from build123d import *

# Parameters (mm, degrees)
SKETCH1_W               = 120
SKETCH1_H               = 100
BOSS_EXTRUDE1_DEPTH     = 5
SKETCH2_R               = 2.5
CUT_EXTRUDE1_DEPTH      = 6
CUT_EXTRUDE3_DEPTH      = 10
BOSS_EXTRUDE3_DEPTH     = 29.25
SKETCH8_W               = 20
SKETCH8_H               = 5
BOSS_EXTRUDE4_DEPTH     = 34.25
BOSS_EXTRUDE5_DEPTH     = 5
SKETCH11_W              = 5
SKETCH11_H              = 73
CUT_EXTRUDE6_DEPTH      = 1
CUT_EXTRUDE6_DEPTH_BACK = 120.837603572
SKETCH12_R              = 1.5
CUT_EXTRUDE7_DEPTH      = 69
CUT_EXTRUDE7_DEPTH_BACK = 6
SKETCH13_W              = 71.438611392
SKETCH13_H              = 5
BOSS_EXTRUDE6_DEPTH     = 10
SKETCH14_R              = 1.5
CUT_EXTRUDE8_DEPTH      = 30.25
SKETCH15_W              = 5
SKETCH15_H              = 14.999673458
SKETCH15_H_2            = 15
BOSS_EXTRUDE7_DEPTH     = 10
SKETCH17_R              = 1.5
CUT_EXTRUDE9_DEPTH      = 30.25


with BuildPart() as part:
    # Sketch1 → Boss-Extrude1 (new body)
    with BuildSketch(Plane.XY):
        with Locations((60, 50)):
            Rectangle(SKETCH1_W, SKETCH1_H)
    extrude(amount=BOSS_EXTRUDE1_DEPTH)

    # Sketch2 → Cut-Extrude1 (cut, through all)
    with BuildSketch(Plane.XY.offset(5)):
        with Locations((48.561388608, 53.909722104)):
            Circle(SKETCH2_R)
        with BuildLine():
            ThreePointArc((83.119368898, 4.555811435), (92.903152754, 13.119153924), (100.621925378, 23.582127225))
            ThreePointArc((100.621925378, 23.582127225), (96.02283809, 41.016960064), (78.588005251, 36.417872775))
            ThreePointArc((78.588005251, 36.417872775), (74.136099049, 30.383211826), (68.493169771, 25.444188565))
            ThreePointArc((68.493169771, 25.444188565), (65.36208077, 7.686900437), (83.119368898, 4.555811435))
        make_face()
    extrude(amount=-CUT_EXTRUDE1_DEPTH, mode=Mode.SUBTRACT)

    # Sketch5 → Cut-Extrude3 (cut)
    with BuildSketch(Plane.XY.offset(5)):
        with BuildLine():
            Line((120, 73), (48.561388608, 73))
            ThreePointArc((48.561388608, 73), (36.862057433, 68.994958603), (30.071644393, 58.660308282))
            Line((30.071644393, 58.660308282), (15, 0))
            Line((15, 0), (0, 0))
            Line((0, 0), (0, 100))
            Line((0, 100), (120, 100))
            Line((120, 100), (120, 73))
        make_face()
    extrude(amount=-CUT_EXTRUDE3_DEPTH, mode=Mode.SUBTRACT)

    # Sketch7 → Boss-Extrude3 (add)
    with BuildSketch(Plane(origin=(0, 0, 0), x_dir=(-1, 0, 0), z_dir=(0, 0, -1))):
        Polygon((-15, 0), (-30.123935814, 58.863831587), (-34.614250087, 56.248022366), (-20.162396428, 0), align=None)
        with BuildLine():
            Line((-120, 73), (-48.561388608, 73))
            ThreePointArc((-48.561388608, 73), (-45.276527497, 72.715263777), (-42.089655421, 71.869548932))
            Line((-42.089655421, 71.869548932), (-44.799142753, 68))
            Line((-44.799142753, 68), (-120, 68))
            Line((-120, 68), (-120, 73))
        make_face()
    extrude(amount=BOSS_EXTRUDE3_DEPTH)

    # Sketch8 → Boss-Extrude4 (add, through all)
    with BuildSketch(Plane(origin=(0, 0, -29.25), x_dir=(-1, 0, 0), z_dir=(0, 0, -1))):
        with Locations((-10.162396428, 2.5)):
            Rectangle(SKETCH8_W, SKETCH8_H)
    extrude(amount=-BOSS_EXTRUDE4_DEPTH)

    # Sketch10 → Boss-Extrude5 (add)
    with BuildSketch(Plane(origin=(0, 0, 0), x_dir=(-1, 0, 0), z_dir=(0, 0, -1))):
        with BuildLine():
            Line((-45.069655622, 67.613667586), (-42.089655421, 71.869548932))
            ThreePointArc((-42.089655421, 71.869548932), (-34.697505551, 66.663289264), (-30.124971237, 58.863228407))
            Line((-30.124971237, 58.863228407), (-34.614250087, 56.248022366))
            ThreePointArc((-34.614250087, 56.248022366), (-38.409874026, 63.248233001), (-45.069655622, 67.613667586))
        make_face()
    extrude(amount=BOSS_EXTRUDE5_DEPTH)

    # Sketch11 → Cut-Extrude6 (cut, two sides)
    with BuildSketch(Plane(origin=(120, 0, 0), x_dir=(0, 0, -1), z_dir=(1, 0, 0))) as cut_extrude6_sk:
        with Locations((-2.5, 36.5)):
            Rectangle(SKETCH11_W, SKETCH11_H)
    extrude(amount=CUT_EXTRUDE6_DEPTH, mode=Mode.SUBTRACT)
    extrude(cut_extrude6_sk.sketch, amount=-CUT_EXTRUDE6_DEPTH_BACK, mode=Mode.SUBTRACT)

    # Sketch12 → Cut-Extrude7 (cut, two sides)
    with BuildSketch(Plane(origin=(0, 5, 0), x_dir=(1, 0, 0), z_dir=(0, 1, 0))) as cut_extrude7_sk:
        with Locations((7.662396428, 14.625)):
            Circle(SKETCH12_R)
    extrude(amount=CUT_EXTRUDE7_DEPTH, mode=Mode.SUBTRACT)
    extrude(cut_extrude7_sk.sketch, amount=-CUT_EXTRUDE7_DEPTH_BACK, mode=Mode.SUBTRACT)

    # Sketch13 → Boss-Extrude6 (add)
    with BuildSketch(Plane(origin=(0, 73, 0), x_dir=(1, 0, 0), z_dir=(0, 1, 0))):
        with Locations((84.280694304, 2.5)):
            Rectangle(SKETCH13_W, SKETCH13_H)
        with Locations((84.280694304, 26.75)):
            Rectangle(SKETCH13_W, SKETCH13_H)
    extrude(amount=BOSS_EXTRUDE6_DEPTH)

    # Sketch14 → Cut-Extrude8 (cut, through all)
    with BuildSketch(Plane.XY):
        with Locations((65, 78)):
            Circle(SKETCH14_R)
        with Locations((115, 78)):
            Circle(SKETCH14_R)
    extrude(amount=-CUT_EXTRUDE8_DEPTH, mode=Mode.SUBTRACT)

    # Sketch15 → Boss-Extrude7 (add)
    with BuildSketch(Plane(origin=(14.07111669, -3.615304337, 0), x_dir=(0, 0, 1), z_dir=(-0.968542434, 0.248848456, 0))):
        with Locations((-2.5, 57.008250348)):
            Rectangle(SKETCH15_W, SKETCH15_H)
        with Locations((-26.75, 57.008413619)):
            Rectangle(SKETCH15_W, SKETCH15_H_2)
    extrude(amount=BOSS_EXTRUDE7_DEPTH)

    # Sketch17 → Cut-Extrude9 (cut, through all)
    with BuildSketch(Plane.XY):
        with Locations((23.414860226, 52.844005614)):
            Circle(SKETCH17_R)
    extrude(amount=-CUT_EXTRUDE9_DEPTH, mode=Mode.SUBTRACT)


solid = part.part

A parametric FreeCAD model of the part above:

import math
import FreeCAD as App
import Part
import Sketcher

V = App.Vector
Q = App.Units.Quantity

doc = App.newDocument("Part")
params = doc.addObject("Spreadsheet::Sheet", "Params")
for row, (alias, value) in enumerate([
    ("sketch1_width", "120 mm"),
    ("sketch1_height", "100 mm"),
    ("pad1_length", "5 mm"),
    ("sketch2_diameter", "5 mm"),
    ("sketch2_radius", "60.25 mm"),
    ("sketch2_radius2", "12.75 mm"),
    ("sketch3_width", "120 mm"),
    ("sketch3_width2", "15 mm"),
    ("sketch3_height", "27 mm"),
    ("sketch3_height2", "100 mm"),
    ("pocket2_length", "10 mm"),
    ("sketch4_height", "5 mm"),
    ("pad2_length", "29.25 mm"),
    ("sketch5_width", "20 mm"),
    ("sketch5_height", "5 mm"),
    ("pad3_length", "34.25 mm"),
    ("pad4_length", "5 mm"),
    ("sketch7_width", "73 mm"),
    ("sketch7_height", "5 mm"),
    ("sketch8_diameter", "3 mm"),
    ("sketch9_height", "5 mm"),
    ("pad5_length", "10 mm"),
    ("sketch10_diameter", "3 mm"),
    ("sketch11_width", "5 mm"),
    ("sketch11_height", "15 mm"),
    ("pad6_length", "10 mm"),
    ("sketch12_diameter", "3 mm"),
], start=1):
    params.set(f"A{row}", alias)
    params.set(f"B{row}", "=" + value)
    params.setAlias(f"B{row}", alias)

body = doc.addObject("PartDesign::Body", "Body")

# Sketch on XY plane
sketch1 = body.newObject("Sketcher::SketchObject", "Sketch")
sketch1.AttachmentSupport = (doc.getObject("XY_Plane"), [""])
sketch1.MapMode = "FlatFace"
sketch1.addGeometry(Part.LineSegment(V(0, 100, 0), V(0, 0, 0)), False)
sketch1.addGeometry(Part.LineSegment(V(0, 0, 0), V(120, 0, 0)), False)
sketch1.addGeometry(Part.LineSegment(V(120, 0, 0), V(120, 100, 0)), False)
sketch1.addGeometry(Part.LineSegment(V(120, 100, 0), V(0, 100, 0)), False)
sketch1.addConstraint(Sketcher.Constraint("Coincident", 0, 2, 1, 1))
sketch1.addConstraint(Sketcher.Constraint("Coincident", 1, 2, 2, 1))
sketch1.addConstraint(Sketcher.Constraint("Coincident", 2, 2, 3, 1))
sketch1.addConstraint(Sketcher.Constraint("Coincident", 3, 2, 0, 1))
sketch1.addConstraint(Sketcher.Constraint("Vertical", 0))
sketch1.addConstraint(Sketcher.Constraint("Horizontal", 1))
sketch1.addConstraint(Sketcher.Constraint("Vertical", 2))
sketch1.addConstraint(Sketcher.Constraint("Horizontal", 3))
sketch1.addConstraint(Sketcher.Constraint("Coincident", 0, 2, -1, 1))
sketch1.addConstraint(Sketcher.Constraint("DistanceX", 1, 1, 1, 2, Q("120 mm")))
sketch1.addConstraint(Sketcher.Constraint("DistanceY", 0, 2, 0, 1, Q("100 mm")))
sketch1.setExpression("Constraints[9]", "Params.sketch1_width")
sketch1.setExpression("Constraints[10]", "Params.sketch1_height")
pad1 = body.newObject("PartDesign::Pad", "Pad")
pad1.Profile = sketch1
pad1.setExpression("Length", "Params.pad1_length")

# Sketch on XY plane
sketch2 = body.newObject("Sketcher::SketchObject", "Sketch001")
sketch2.AttachmentSupport = (doc.getObject("XY_Plane"), [""])
sketch2.MapMode = "FlatFace"
sketch2.AttachmentOffset = App.Placement(V(0, 0, 5), App.Rotation())
sketch2.addGeometry(Part.Circle(V(48.561389, 53.909722, 0), V(0, 0, 1), 2.5), False)
sketch2.addGeometry(Part.ArcOfCircle(Part.Circle(V(48.561389, 53.909722, 0), V(0, 0, 1), 60.25), math.radians(-55), math.radians(-30.222716)), False)
sketch2.addGeometry(Part.ArcOfCircle(Part.Circle(V(89.604965, 30, 0), V(0, 0, 1), 12.75), math.radians(-30.222716), math.radians(149.777284)), False)
sketch2.addGeometry(Part.ArcOfCircle(Part.Circle(V(48.561389, 53.909722, 0), V(0, 0, 1), 34.75), math.radians(-55), math.radians(-30.222716)), False)
sketch2.addGeometry(Part.ArcOfCircle(Part.Circle(V(75.806269, 15, 0), V(0, 0, 1), 12.75), math.radians(125), math.radians(305)), False)
sketch2.addConstraint(Sketcher.Constraint("Tangent", 1, 2, 2, 1))
sketch2.addConstraint(Sketcher.Constraint("Tangent", 2, 2, 3, 2))
sketch2.addConstraint(Sketcher.Constraint("Tangent", 3, 1, 4, 1))
sketch2.addConstraint(Sketcher.Constraint("Tangent", 4, 2, 1, 1))
sketch2.addConstraint(Sketcher.Constraint("Coincident", 1, 3, 0, 3))
sketch2.addConstraint(Sketcher.Constraint("Coincident", 3, 3, 0, 3))
sketch2.addConstraint(Sketcher.Constraint("Diameter", 0, Q("5 mm")))
sketch2.addConstraint(Sketcher.Constraint("Radius", 1, Q("60.25 mm")))
sketch2.addConstraint(Sketcher.Constraint("Radius", 2, Q("12.75 mm")))
sketch2.addConstraint(Sketcher.Constraint("DistanceY", -1, 1, 2, 3, Q("30 mm")))
sketch2.addConstraint(Sketcher.Constraint("DistanceY", -1, 1, 4, 3, Q("15 mm")))
sketch2.addConstraint(Sketcher.Constraint("DistanceX", 3, 1, 4, 3, Q("7.3131 mm")))
sketch2.addConstraint(Sketcher.Constraint("DistanceX", -1, 1, 0, 3, Q("48.561389 mm")))
sketch2.setExpression("Constraints[6]", "Params.sketch2_diameter")
sketch2.setExpression("Constraints[7]", "Params.sketch2_radius")
sketch2.setExpression("Constraints[8]", "Params.sketch2_radius2")
pocket1 = body.newObject("PartDesign::Pocket", "Pocket")
pocket1.Profile = sketch2
pocket1.Type = "ThroughAll"

# Sketch on XY plane
sketch3 = body.newObject("Sketcher::SketchObject", "Sketch002")
sketch3.AttachmentSupport = (doc.getObject("XY_Plane"), [""])
sketch3.MapMode = "FlatFace"
sketch3.AttachmentOffset = App.Placement(V(0, 0, 5), App.Rotation())
sketch3.addGeometry(Part.LineSegment(V(48.561389, 73, 0), V(120, 73, 0)), False)
sketch3.addGeometry(Part.LineSegment(V(120, 73, 0), V(120, 100, 0)), False)
sketch3.addGeometry(Part.LineSegment(V(120, 100, 0), V(0, 100, 0)), False)
sketch3.addGeometry(Part.LineSegment(V(0, 100, 0), V(0, 0, 0)), False)
sketch3.addGeometry(Part.LineSegment(V(0, 0, 0), V(15, 0, 0)), False)
sketch3.addGeometry(Part.LineSegment(V(15, 0, 0), V(30.071644, 58.660308, 0)), False)
sketch3.addGeometry(Part.ArcOfCircle(Part.Circle(V(48.561389, 53.909722, 0), V(0, 0, 1), 19.090278), math.radians(90), math.radians(165.59062)), False)
sketch3.addConstraint(Sketcher.Constraint("Coincident", 0, 2, 1, 1))
sketch3.addConstraint(Sketcher.Constraint("Coincident", 1, 2, 2, 1))
sketch3.addConstraint(Sketcher.Constraint("Coincident", 2, 2, 3, 1))
sketch3.addConstraint(Sketcher.Constraint("Coincident", 3, 2, 4, 1))
sketch3.addConstraint(Sketcher.Constraint("Coincident", 4, 2, 5, 1))
sketch3.addConstraint(Sketcher.Constraint("Tangent", 5, 2, 6, 2))
sketch3.addConstraint(Sketcher.Constraint("Tangent", 6, 1, 0, 1))
sketch3.addConstraint(Sketcher.Constraint("Horizontal", 0))
sketch3.addConstraint(Sketcher.Constraint("Vertical", 1))
sketch3.addConstraint(Sketcher.Constraint("Horizontal", 2))
sketch3.addConstraint(Sketcher.Constraint("Vertical", 3))
sketch3.addConstraint(Sketcher.Constraint("Horizontal", 4))
sketch3.addConstraint(Sketcher.Constraint("Coincident", 3, 2, -1, 1))
sketch3.addConstraint(Sketcher.Constraint("DistanceX", 2, 2, 2, 1, Q("120 mm")))
sketch3.addConstraint(Sketcher.Constraint("DistanceX", 4, 1, 4, 2, Q("15 mm")))
sketch3.addConstraint(Sketcher.Constraint("DistanceY", 1, 1, 1, 2, Q("27 mm")))
sketch3.addConstraint(Sketcher.Constraint("DistanceY", 3, 2, 3, 1, Q("100 mm")))
sketch3.addConstraint(Sketcher.Constraint("Radius", 6, Q("19.090278 mm")))
sketch3.addConstraint(Sketcher.Constraint("DistanceX", 0, 1, 0, 2, Q("71.438611 mm")))
sketch3.setExpression("Constraints[13]", "Params.sketch3_width")
sketch3.setExpression("Constraints[14]", "Params.sketch3_width2")
sketch3.setExpression("Constraints[15]", "Params.sketch3_height")
sketch3.setExpression("Constraints[16]", "Params.sketch3_height2")
pocket2 = body.newObject("PartDesign::Pocket", "Pocket001")
pocket2.Profile = sketch3
pocket2.setExpression("Length", "Params.pocket2_length")

# Sketch on XY plane
sketch4 = body.newObject("Sketcher::SketchObject", "Sketch003")
sketch4.AttachmentSupport = (doc.getObject("XY_Plane"), [""])
sketch4.MapMode = "FlatFace"
sketch4.addGeometry(Part.LineSegment(V(15, 0, 0), V(30.123936, 58.863832, 0)), False)
sketch4.addGeometry(Part.LineSegment(V(30.123936, 58.863832, 0), V(34.61425, 56.248022, 0)), False)
sketch4.addGeometry(Part.LineSegment(V(34.61425, 56.248022, 0), V(20.162396, 0, 0)), False)
sketch4.addGeometry(Part.LineSegment(V(20.162396, 0, 0), V(15, 0, 0)), False)
sketch4.addGeometry(Part.LineSegment(V(48.561389, 73, 0), V(120, 73, 0)), False)
sketch4.addGeometry(Part.LineSegment(V(120, 73, 0), V(120, 68, 0)), False)
sketch4.addGeometry(Part.LineSegment(V(120, 68, 0), V(44.799143, 68, 0)), False)
sketch4.addGeometry(Part.LineSegment(V(44.799143, 68, 0), V(42.089655, 71.869549, 0)), False)
sketch4.addGeometry(Part.ArcOfCircle(Part.Circle(V(48.561389, 53.909722, 0), V(0, 0, 1), 19.090278), math.radians(90), math.radians(109.816372)), False)
sketch4.addConstraint(Sketcher.Constraint("Coincident", 0, 2, 1, 1))
sketch4.addConstraint(Sketcher.Constraint("Coincident", 1, 2, 2, 1))
sketch4.addConstraint(Sketcher.Constraint("Coincident", 2, 2, 3, 1))
sketch4.addConstraint(Sketcher.Constraint("Coincident", 3, 2, 0, 1))
sketch4.addConstraint(Sketcher.Constraint("Coincident", 4, 2, 5, 1))
sketch4.addConstraint(Sketcher.Constraint("Coincident", 5, 2, 6, 1))
sketch4.addConstraint(Sketcher.Constraint("Coincident", 6, 2, 7, 1))
sketch4.addConstraint(Sketcher.Constraint("Coincident", 7, 2, 8, 2))
sketch4.addConstraint(Sketcher.Constraint("Tangent", 8, 1, 4, 1))
sketch4.addConstraint(Sketcher.Constraint("Horizontal", 3))
sketch4.addConstraint(Sketcher.Constraint("Horizontal", 4))
sketch4.addConstraint(Sketcher.Constraint("Vertical", 5))
sketch4.addConstraint(Sketcher.Constraint("Horizontal", 6))
sketch4.addConstraint(Sketcher.Constraint("PointOnObject", 2, 2, -1))
sketch4.addConstraint(Sketcher.Constraint("Parallel", 0, 2))
sketch4.addConstraint(Sketcher.Constraint("DistanceY", 5, 2, 5, 1, Q("5 mm")))
sketch4.addConstraint(Sketcher.Constraint("Angle", 7, Q("125 deg")))
sketch4.addConstraint(Sketcher.Constraint("DistanceX", -1, 1, 3, 2, Q("15 mm")))
sketch4.addConstraint(Sketcher.Constraint("DistanceX", -1, 1, 4, 2, Q("120 mm")))
sketch4.addConstraint(Sketcher.Constraint("DistanceY", -1, 1, 4, 2, Q("73 mm")))
sketch4.addConstraint(Sketcher.Constraint("Radius", 8, Q("19.090278 mm")))
sketch4.addConstraint(Sketcher.Constraint("DistanceX", 4, 1, 4, 2, Q("71.438611 mm")))
sketch4.addConstraint(Sketcher.Constraint("DistanceY", 8, 3, 1, 2, Q("2.3383 mm")))
sketch4.addConstraint(Sketcher.Constraint("Distance", 1, Q("5.19667 mm")))
sketch4.addConstraint(Sketcher.Constraint("DistanceX", 3, 2, 3, 1, Q("5.162396 mm")))
sketch4.addConstraint(Sketcher.Constraint("DistanceX", 6, 2, 6, 1, Q("75.200857 mm")))
sketch4.addConstraint(Sketcher.Constraint("DistanceY", -1, 1, 0, 2, Q("58.863832 mm")))
sketch4.setExpression("Constraints[15]", "Params.sketch4_height")
pad2 = body.newObject("PartDesign::Pad", "Pad001")
pad2.Profile = sketch4
pad2.setExpression("Length", "Params.pad2_length")
pad2.Reversed = True

# Sketch on XY plane
sketch5 = body.newObject("Sketcher::SketchObject", "Sketch004")
sketch5.AttachmentSupport = (doc.getObject("XY_Plane"), [""])
sketch5.MapMode = "FlatFace"
sketch5.AttachmentOffset = App.Placement(V(0, 0, -29.25), App.Rotation())
sketch5.addGeometry(Part.LineSegment(V(20.162396, 5, 0), V(20.162396, 0, 0)), False)
sketch5.addGeometry(Part.LineSegment(V(20.162396, 0, 0), V(0.162396, 0, 0)), False)
sketch5.addGeometry(Part.LineSegment(V(0.162396, 0, 0), V(0.162396, 5, 0)), False)
sketch5.addGeometry(Part.LineSegment(V(0.162396, 5, 0), V(20.162396, 5, 0)), False)
sketch5.addConstraint(Sketcher.Constraint("Coincident", 0, 2, 1, 1))
sketch5.addConstraint(Sketcher.Constraint("Coincident", 1, 2, 2, 1))
sketch5.addConstraint(Sketcher.Constraint("Coincident", 2, 2, 3, 1))
sketch5.addConstraint(Sketcher.Constraint("Coincident", 3, 2, 0, 1))
sketch5.addConstraint(Sketcher.Constraint("Vertical", 0))
sketch5.addConstraint(Sketcher.Constraint("Horizontal", 1))
sketch5.addConstraint(Sketcher.Constraint("Vertical", 2))
sketch5.addConstraint(Sketcher.Constraint("Horizontal", 3))
sketch5.addConstraint(Sketcher.Constraint("PointOnObject", 0, 2, -1))
sketch5.addConstraint(Sketcher.Constraint("DistanceX", 1, 2, 1, 1, Q("20 mm")))
sketch5.addConstraint(Sketcher.Constraint("DistanceY", 0, 2, 0, 1, Q("5 mm")))
sketch5.addConstraint(Sketcher.Constraint("DistanceX", -1, 1, 0, 2, Q("20.162396 mm")))
sketch5.setExpression("Constraints[9]", "Params.sketch5_width")
sketch5.setExpression("Constraints[10]", "Params.sketch5_height")
pad3 = body.newObject("PartDesign::Pad", "Pad002")
pad3.Profile = sketch5
pad3.setExpression("Length", "Params.pad3_length")

# Sketch on XY plane
sketch6 = body.newObject("Sketcher::SketchObject", "Sketch005")
sketch6.AttachmentSupport = (doc.getObject("XY_Plane"), [""])
sketch6.MapMode = "FlatFace"
sketch6.addGeometry(Part.LineSegment(V(42.089655, 71.869549, 0), V(45.069656, 67.613668, 0)), False)
sketch6.addGeometry(Part.ArcOfCircle(Part.Circle(V(50.401296, 52.217167, 0), V(0, 0, 1), 16.293514), math.radians(109.100412), math.radians(165.676872)), False)
sketch6.addGeometry(Part.LineSegment(V(34.61425, 56.248022, 0), V(30.124971, 58.863228, 0)), False)
sketch6.addGeometry(Part.ArcOfCircle(Part.Circle(V(50.401296, 52.217167, 0), V(0, 0, 1), 21.337747), math.radians(112.925105), math.radians(161.852178)), False)
sketch6.addConstraint(Sketcher.Constraint("Coincident", 0, 2, 1, 1))
sketch6.addConstraint(Sketcher.Constraint("Coincident", 1, 2, 2, 1))
sketch6.addConstraint(Sketcher.Constraint("Coincident", 2, 2, 3, 2))
sketch6.addConstraint(Sketcher.Constraint("Coincident", 3, 1, 0, 1))
sketch6.addConstraint(Sketcher.Constraint("Coincident", 3, 3, 1, 3))
sketch6.addConstraint(Sketcher.Constraint("Equal", 0, 2))
sketch6.addConstraint(Sketcher.Constraint("Angle", 0, Q("-55 deg")))
sketch6.addConstraint(Sketcher.Constraint("DistanceX", 3, 1, 0, 2, Q("2.98 mm")))
sketch6.addConstraint(Sketcher.Constraint("Radius", 1, Q("16.293514 mm")))
sketch6.addConstraint(Sketcher.Constraint("Radius", 3, Q("21.337747 mm")))
sketch6.addConstraint(Sketcher.Constraint("DistanceX", -1, 1, 1, 2, Q("34.61425 mm")))
sketch6.addConstraint(Sketcher.Constraint("DistanceX", -1, 1, 2, 2, Q("30.124971 mm")))
sketch6.addConstraint(Sketcher.Constraint("DistanceY", -1, 1, 2, 2, Q("58.863228 mm")))
pad4 = body.newObject("PartDesign::Pad", "Pad003")
pad4.Profile = sketch6
pad4.setExpression("Length", "Params.pad4_length")
pad4.Reversed = True

# Sketch on YZ plane
sketch7 = body.newObject("Sketcher::SketchObject", "Sketch006")
sketch7.AttachmentSupport = (doc.getObject("YZ_Plane"), [""])
sketch7.MapMode = "FlatFace"
sketch7.AttachmentOffset = App.Placement(V(0, 0, 120), App.Rotation())
sketch7.addGeometry(Part.LineSegment(V(73, 5, 0), V(0, 5, 0)), False)
sketch7.addGeometry(Part.LineSegment(V(0, 5, 0), V(0, 0, 0)), False)
sketch7.addGeometry(Part.LineSegment(V(0, 0, 0), V(73, 0, 0)), False)
sketch7.addGeometry(Part.LineSegment(V(73, 0, 0), V(73, 5, 0)), False)
sketch7.addConstraint(Sketcher.Constraint("Coincident", 0, 2, 1, 1))
sketch7.addConstraint(Sketcher.Constraint("Coincident", 1, 2, 2, 1))
sketch7.addConstraint(Sketcher.Constraint("Coincident", 2, 2, 3, 1))
sketch7.addConstraint(Sketcher.Constraint("Coincident", 3, 2, 0, 1))
sketch7.addConstraint(Sketcher.Constraint("Horizontal", 0))
sketch7.addConstraint(Sketcher.Constraint("Vertical", 1))
sketch7.addConstraint(Sketcher.Constraint("Horizontal", 2))
sketch7.addConstraint(Sketcher.Constraint("Vertical", 3))
sketch7.addConstraint(Sketcher.Constraint("Coincident", 1, 2, -1, 1))
sketch7.addConstraint(Sketcher.Constraint("DistanceX", 0, 2, 0, 1, Q("73 mm")))
sketch7.addConstraint(Sketcher.Constraint("DistanceY", 1, 2, 1, 1, Q("5 mm")))
sketch7.setExpression("Constraints[9]", "Params.sketch7_width")
sketch7.setExpression("Constraints[10]", "Params.sketch7_height")
pocket3 = body.newObject("PartDesign::Pocket", "Pocket002")
pocket3.Profile = sketch7
pocket3.Type = "ThroughAll"
pocket3.Midplane = True

# Sketch on XZ plane
sketch8 = body.newObject("Sketcher::SketchObject", "Sketch007")
sketch8.AttachmentSupport = (doc.getObject("XZ_Plane"), [""])
sketch8.MapMode = "FlatFace"
sketch8.AttachmentOffset = App.Placement(V(0, 0, -5), App.Rotation())
sketch8.addGeometry(Part.Circle(V(7.662396, -14.625, 0), V(0, 0, 1), 1.5), False)
sketch8.addConstraint(Sketcher.Constraint("Diameter", 0, Q("3 mm")))
sketch8.addConstraint(Sketcher.Constraint("DistanceY", 0, 3, -1, 1, Q("14.625 mm")))
sketch8.addConstraint(Sketcher.Constraint("DistanceX", -1, 1, 0, 3, Q("7.662396 mm")))
sketch8.setExpression("Constraints[0]", "Params.sketch8_diameter")
pocket4 = body.newObject("PartDesign::Pocket", "Pocket003")
pocket4.Profile = sketch8
pocket4.Type = "ThroughAll"
pocket4.Midplane = True

# Sketch on XZ plane
sketch9 = body.newObject("Sketcher::SketchObject", "Sketch008")
sketch9.AttachmentSupport = (doc.getObject("XZ_Plane"), [""])
sketch9.MapMode = "FlatFace"
sketch9.AttachmentOffset = App.Placement(V(0, 0, -73), App.Rotation())
sketch9.addGeometry(Part.LineSegment(V(48.561389, -5, 0), V(48.561389, 0, 0)), False)
sketch9.addGeometry(Part.LineSegment(V(48.561389, 0, 0), V(120, 0, 0)), False)
sketch9.addGeometry(Part.LineSegment(V(120, 0, 0), V(120, -5, 0)), False)
sketch9.addGeometry(Part.LineSegment(V(120, -5, 0), V(48.561389, -5, 0)), False)
sketch9.addGeometry(Part.LineSegment(V(48.561389, -29.25, 0), V(48.561389, -24.25, 0)), False)
sketch9.addGeometry(Part.LineSegment(V(48.561389, -24.25, 0), V(120, -24.25, 0)), False)
sketch9.addGeometry(Part.LineSegment(V(120, -24.25, 0), V(120, -29.25, 0)), False)
sketch9.addGeometry(Part.LineSegment(V(120, -29.25, 0), V(48.561389, -29.25, 0)), False)
sketch9.addConstraint(Sketcher.Constraint("Coincident", 0, 2, 1, 1))
sketch9.addConstraint(Sketcher.Constraint("Coincident", 1, 2, 2, 1))
sketch9.addConstraint(Sketcher.Constraint("Coincident", 2, 2, 3, 1))
sketch9.addConstraint(Sketcher.Constraint("Coincident", 3, 2, 0, 1))
sketch9.addConstraint(Sketcher.Constraint("Coincident", 4, 2, 5, 1))
sketch9.addConstraint(Sketcher.Constraint("Coincident", 5, 2, 6, 1))
sketch9.addConstraint(Sketcher.Constraint("Coincident", 6, 2, 7, 1))
sketch9.addConstraint(Sketcher.Constraint("Coincident", 7, 2, 4, 1))
sketch9.addConstraint(Sketcher.Constraint("Vertical", 0))
sketch9.addConstraint(Sketcher.Constraint("Horizontal", 1))
sketch9.addConstraint(Sketcher.Constraint("Vertical", 2))
sketch9.addConstraint(Sketcher.Constraint("Horizontal", 3))
sketch9.addConstraint(Sketcher.Constraint("Vertical", 4))
sketch9.addConstraint(Sketcher.Constraint("Horizontal", 5))
sketch9.addConstraint(Sketcher.Constraint("Vertical", 6))
sketch9.addConstraint(Sketcher.Constraint("Horizontal", 7))
sketch9.addConstraint(Sketcher.Constraint("PointOnObject", 0, 2, -1))
sketch9.addConstraint(Sketcher.Constraint("Vertical", 3, 2, 4, 2))
sketch9.addConstraint(Sketcher.Constraint("Vertical", 2, 2, 5, 2))
sketch9.addConstraint(Sketcher.Constraint("Equal", 2, 4))
sketch9.addConstraint(Sketcher.Constraint("DistanceY", 0, 1, 0, 2, Q("5 mm")))
sketch9.addConstraint(Sketcher.Constraint("DistanceX", -1, 1, 1, 2, Q("120 mm")))
sketch9.addConstraint(Sketcher.Constraint("DistanceY", 4, 2, -1, 1, Q("24.25 mm")))
sketch9.addConstraint(Sketcher.Constraint("DistanceX", 1, 1, 1, 2, Q("71.438611 mm")))
sketch9.setExpression("Constraints[20]", "Params.sketch9_height")
pad5 = body.newObject("PartDesign::Pad", "Pad004")
pad5.Profile = sketch9
pad5.setExpression("Length", "Params.pad5_length")
pad5.Reversed = True

# Sketch on XY plane
sketch10 = body.newObject("Sketcher::SketchObject", "Sketch009")
sketch10.AttachmentSupport = (doc.getObject("XY_Plane"), [""])
sketch10.MapMode = "FlatFace"
sketch10.addGeometry(Part.Circle(V(65, 78, 0), V(0, 0, 1), 1.5), False)
sketch10.addGeometry(Part.Circle(V(115, 78, 0), V(0, 0, 1), 1.5), False)
sketch10.addConstraint(Sketcher.Constraint("Equal", 0, 1))
sketch10.addConstraint(Sketcher.Constraint("Horizontal", 0, 3, 1, 3))
sketch10.addConstraint(Sketcher.Constraint("Diameter", 0, Q("3 mm")))
sketch10.addConstraint(Sketcher.Constraint("DistanceX", -1, 1, 0, 3, Q("65 mm")))
sketch10.addConstraint(Sketcher.Constraint("DistanceY", -1, 1, 0, 3, Q("78 mm")))
sketch10.addConstraint(Sketcher.Constraint("DistanceX", -1, 1, 1, 3, Q("115 mm")))
sketch10.setExpression("Constraints[2]", "Params.sketch10_diameter")
pocket5 = body.newObject("PartDesign::Pocket", "Pocket004")
pocket5.Profile = sketch10
pocket5.Type = "ThroughAll"

# Sketch on an angled plane
sketch11 = body.newObject("Sketcher::SketchObject", "Sketch010")
sketch11.Placement = App.Placement(V(14.071117, -3.615304, 0), App.Rotation(V(0, 0, 1), V(0.248848456, 0.968542434, 0), V(-0.968542434, 0.248848456, 0), "ZXY"))
sketch11.addGeometry(Part.LineSegment(V(-5, 64.508087, 0), V(-5, 49.508414, 0)), False)
sketch11.addGeometry(Part.LineSegment(V(-5, 49.508414, 0), V(0, 49.508414, 0)), False)
sketch11.addGeometry(Part.LineSegment(V(0, 49.508414, 0), V(0, 64.508087, 0)), False)
sketch11.addGeometry(Part.LineSegment(V(0, 64.508087, 0), V(-5, 64.508087, 0)), False)
sketch11.addGeometry(Part.LineSegment(V(-29.25, 64.508414, 0), V(-29.25, 49.508414, 0)), False)
sketch11.addGeometry(Part.LineSegment(V(-29.25, 49.508414, 0), V(-24.25, 49.508414, 0)), False)
sketch11.addGeometry(Part.LineSegment(V(-24.25, 49.508414, 0), V(-24.25, 64.508414, 0)), False)
sketch11.addGeometry(Part.LineSegment(V(-24.25, 64.508414, 0), V(-29.25, 64.508414, 0)), False)
sketch11.addConstraint(Sketcher.Constraint("Coincident", 0, 2, 1, 1))
sketch11.addConstraint(Sketcher.Constraint("Coincident", 1, 2, 2, 1))
sketch11.addConstraint(Sketcher.Constraint("Coincident", 2, 2, 3, 1))
sketch11.addConstraint(Sketcher.Constraint("Coincident", 3, 2, 0, 1))
sketch11.addConstraint(Sketcher.Constraint("Coincident", 4, 2, 5, 1))
sketch11.addConstraint(Sketcher.Constraint("Coincident", 5, 2, 6, 1))
sketch11.addConstraint(Sketcher.Constraint("Coincident", 6, 2, 7, 1))
sketch11.addConstraint(Sketcher.Constraint("Coincident", 7, 2, 4, 1))
sketch11.addConstraint(Sketcher.Constraint("Vertical", 0))
sketch11.addConstraint(Sketcher.Constraint("Horizontal", 1))
sketch11.addConstraint(Sketcher.Constraint("Vertical", 2))
sketch11.addConstraint(Sketcher.Constraint("Horizontal", 3))
sketch11.addConstraint(Sketcher.Constraint("Vertical", 4))
sketch11.addConstraint(Sketcher.Constraint("Horizontal", 5))
sketch11.addConstraint(Sketcher.Constraint("Vertical", 6))
sketch11.addConstraint(Sketcher.Constraint("Horizontal", 7))
sketch11.addConstraint(Sketcher.Constraint("PointOnObject", 1, 2, -2))
sketch11.addConstraint(Sketcher.Constraint("Horizontal", 1, 2, 4, 2))
sketch11.addConstraint(Sketcher.Constraint("Equal", 3, 5))
sketch11.addConstraint(Sketcher.Constraint("DistanceX", 1, 1, 1, 2, Q("5 mm")))
sketch11.addConstraint(Sketcher.Constraint("DistanceY", 4, 2, 4, 1, Q("15 mm")))
sketch11.addConstraint(Sketcher.Constraint("DistanceX", 4, 2, -1, 1, Q("29.25 mm")))
sketch11.addConstraint(Sketcher.Constraint("DistanceY", 0, 2, 0, 1, Q("14.999673 mm")))
sketch11.addConstraint(Sketcher.Constraint("DistanceY", -1, 1, 0, 2, Q("49.508414 mm")))
sketch11.setExpression("Constraints[19]", "Params.sketch11_width")
sketch11.setExpression("Constraints[20]", "Params.sketch11_height")
pad6 = body.newObject("PartDesign::Pad", "Pad005")
pad6.Profile = sketch11
pad6.setExpression("Length", "Params.pad6_length")

# Sketch on XY plane
sketch12 = body.newObject("Sketcher::SketchObject", "Sketch011")
sketch12.AttachmentSupport = (doc.getObject("XY_Plane"), [""])
sketch12.MapMode = "FlatFace"
sketch12.addGeometry(Part.Circle(V(23.41486, 52.844006, 0), V(0, 0, 1), 1.5), False)
sketch12.addConstraint(Sketcher.Constraint("Diameter", 0, Q("3 mm")))
sketch12.addConstraint(Sketcher.Constraint("DistanceX", -1, 1, 0, 3, Q("23.41486 mm")))
sketch12.addConstraint(Sketcher.Constraint("DistanceY", -1, 1, 0, 3, Q("52.844006 mm")))
sketch12.setExpression("Constraints[0]", "Params.sketch12_diameter")
pocket6 = body.newObject("PartDesign::Pocket", "Pocket005")
pocket6.Profile = sketch12
pocket6.Type = "ThroughAll"

doc.recompute()
